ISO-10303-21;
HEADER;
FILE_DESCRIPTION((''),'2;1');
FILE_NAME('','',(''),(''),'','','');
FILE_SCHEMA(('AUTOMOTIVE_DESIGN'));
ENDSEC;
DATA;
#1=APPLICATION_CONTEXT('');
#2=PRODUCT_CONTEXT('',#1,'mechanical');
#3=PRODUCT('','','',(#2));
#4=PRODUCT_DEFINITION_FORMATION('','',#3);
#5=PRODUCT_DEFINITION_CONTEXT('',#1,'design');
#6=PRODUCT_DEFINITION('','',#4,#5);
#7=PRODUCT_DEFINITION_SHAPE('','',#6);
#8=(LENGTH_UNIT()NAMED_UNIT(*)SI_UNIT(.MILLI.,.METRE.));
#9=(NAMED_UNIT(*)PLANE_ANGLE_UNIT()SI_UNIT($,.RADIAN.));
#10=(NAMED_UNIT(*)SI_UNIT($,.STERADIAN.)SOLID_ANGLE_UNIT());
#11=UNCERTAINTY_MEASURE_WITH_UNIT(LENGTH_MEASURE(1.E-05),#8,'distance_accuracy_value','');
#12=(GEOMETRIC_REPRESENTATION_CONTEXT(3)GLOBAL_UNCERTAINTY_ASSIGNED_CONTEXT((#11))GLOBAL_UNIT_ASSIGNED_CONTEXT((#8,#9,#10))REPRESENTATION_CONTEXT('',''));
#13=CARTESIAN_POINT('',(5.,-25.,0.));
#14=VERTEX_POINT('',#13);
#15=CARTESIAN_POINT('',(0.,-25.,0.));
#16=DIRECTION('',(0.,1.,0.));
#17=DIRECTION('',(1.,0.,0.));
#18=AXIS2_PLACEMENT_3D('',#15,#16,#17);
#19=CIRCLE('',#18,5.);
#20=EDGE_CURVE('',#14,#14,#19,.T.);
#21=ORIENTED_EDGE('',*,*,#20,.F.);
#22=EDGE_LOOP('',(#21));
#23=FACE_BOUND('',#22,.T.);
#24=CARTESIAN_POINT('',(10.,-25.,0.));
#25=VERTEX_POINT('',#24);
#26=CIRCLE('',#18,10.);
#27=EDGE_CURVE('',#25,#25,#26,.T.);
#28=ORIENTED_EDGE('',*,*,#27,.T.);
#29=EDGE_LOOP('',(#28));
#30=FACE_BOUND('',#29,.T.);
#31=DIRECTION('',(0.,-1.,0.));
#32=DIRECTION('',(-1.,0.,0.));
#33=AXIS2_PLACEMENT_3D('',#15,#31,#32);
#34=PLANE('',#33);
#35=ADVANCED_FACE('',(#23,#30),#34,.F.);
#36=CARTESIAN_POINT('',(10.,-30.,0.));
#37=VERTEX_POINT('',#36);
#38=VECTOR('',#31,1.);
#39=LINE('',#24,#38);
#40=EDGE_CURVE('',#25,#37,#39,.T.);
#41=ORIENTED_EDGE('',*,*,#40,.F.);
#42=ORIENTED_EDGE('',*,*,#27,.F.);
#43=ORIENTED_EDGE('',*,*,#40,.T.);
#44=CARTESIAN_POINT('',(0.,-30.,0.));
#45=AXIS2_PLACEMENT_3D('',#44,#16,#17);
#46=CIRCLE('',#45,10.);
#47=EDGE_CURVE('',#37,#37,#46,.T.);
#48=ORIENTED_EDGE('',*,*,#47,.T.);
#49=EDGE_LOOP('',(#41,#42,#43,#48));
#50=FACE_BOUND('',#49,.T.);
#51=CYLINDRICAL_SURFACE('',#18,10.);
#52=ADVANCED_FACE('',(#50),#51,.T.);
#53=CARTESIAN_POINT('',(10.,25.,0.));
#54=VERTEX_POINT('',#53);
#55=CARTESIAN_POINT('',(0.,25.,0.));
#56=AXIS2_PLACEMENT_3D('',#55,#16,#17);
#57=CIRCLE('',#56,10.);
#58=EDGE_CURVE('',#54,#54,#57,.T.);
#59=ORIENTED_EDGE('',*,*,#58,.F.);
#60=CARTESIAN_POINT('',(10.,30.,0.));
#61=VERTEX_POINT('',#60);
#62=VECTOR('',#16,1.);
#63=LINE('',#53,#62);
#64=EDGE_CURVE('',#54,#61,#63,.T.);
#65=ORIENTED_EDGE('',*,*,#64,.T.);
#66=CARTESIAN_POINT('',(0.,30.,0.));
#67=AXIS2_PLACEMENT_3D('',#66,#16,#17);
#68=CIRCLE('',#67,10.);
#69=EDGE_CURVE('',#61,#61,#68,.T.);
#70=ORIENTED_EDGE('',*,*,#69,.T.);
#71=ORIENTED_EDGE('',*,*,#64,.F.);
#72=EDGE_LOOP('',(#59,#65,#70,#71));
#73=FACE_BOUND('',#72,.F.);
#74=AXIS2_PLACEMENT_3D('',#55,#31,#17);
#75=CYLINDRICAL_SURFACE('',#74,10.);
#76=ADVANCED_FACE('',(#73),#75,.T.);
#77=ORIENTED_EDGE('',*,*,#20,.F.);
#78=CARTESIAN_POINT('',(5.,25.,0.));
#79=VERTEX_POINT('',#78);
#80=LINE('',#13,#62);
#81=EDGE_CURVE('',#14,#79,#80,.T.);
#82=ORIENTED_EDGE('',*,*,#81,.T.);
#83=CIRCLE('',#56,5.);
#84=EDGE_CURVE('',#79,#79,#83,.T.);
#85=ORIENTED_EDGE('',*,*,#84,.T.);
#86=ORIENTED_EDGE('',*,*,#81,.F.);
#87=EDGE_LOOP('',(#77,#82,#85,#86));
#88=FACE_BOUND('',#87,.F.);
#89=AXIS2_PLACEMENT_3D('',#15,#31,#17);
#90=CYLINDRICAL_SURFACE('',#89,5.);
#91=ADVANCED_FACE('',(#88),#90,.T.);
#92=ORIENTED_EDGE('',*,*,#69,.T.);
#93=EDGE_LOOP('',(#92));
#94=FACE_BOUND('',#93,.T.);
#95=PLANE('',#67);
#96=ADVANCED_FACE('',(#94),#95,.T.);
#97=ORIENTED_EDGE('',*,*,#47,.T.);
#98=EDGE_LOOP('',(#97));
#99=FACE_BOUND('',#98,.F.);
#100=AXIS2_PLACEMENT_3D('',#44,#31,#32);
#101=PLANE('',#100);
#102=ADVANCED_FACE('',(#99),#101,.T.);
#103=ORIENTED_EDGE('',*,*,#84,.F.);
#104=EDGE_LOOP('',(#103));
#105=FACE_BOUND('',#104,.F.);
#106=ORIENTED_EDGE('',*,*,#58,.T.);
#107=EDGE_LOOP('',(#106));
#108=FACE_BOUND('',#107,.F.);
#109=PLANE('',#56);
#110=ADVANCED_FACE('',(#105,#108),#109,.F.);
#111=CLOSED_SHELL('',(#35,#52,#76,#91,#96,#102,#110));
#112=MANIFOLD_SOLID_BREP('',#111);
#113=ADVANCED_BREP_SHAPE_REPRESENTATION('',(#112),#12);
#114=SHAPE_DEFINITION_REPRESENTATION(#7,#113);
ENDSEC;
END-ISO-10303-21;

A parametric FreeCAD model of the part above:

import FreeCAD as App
import Part
import Sketcher
from FreeCAD import Vector
Q = App.Units.Quantity

doc = App.newDocument("Part")
body = doc.addObject("PartDesign::Body", "Body")

# Sketch on XZ plane
sketch1 = doc.addObject("Sketcher::SketchObject", "Sketch")
body.addObject(sketch1)
sketch1.AttachmentSupport = (doc.XZ_Plane, [""])
sketch1.MapMode = "FlatFace"
sketch1.AttachmentOffset = App.Placement(Vector(0, 0, 25), App.Rotation())
sketch1.addGeometry(Part.Circle(Vector(0, 0, 0), Vector(0, 0, 1), 5), False)
sketch1.addConstraint(Sketcher.Constraint("Coincident", 0, 3, -1, 1))
sketch1.addConstraint(Sketcher.Constraint("Diameter", 0, Q("10 mm")))
pad1 = doc.addObject("PartDesign::Pad", "Pad")
body.addObject(pad1)
pad1.Profile = sketch1
pad1.Length = 50
pad1.Reversed = True

# Sketch on XZ plane
sketch2 = doc.addObject("Sketcher::SketchObject", "Sketch001")
body.addObject(sketch2)
sketch2.AttachmentSupport = (doc.XZ_Plane, [""])
sketch2.MapMode = "FlatFace"
sketch2.AttachmentOffset = App.Placement(Vector(0, 0, -25), App.Rotation())
sketch2.addGeometry(Part.Circle(Vector(0, 0, 0), Vector(0, 0, 1), 10), False)
sketch2.addConstraint(Sketcher.Constraint("Coincident", 0, 3, -1, 1))
sketch2.addConstraint(Sketcher.Constraint("Diameter", 0, Q("20 mm")))
pad2 = doc.addObject("PartDesign::Pad", "Pad001")
body.addObject(pad2)
pad2.Profile = sketch2
pad2.Length = 5
pad2.Reversed = True
doc.recompute()

mirrored = doc.addObject("PartDesign::Mirrored", "Mirrored")
body.addObject(mirrored)
mirrored.Originals = [pad2]
mirrored.MirrorPlane = (doc.XZ_Plane, [""])
body.Tip = mirrored

doc.recompute()
